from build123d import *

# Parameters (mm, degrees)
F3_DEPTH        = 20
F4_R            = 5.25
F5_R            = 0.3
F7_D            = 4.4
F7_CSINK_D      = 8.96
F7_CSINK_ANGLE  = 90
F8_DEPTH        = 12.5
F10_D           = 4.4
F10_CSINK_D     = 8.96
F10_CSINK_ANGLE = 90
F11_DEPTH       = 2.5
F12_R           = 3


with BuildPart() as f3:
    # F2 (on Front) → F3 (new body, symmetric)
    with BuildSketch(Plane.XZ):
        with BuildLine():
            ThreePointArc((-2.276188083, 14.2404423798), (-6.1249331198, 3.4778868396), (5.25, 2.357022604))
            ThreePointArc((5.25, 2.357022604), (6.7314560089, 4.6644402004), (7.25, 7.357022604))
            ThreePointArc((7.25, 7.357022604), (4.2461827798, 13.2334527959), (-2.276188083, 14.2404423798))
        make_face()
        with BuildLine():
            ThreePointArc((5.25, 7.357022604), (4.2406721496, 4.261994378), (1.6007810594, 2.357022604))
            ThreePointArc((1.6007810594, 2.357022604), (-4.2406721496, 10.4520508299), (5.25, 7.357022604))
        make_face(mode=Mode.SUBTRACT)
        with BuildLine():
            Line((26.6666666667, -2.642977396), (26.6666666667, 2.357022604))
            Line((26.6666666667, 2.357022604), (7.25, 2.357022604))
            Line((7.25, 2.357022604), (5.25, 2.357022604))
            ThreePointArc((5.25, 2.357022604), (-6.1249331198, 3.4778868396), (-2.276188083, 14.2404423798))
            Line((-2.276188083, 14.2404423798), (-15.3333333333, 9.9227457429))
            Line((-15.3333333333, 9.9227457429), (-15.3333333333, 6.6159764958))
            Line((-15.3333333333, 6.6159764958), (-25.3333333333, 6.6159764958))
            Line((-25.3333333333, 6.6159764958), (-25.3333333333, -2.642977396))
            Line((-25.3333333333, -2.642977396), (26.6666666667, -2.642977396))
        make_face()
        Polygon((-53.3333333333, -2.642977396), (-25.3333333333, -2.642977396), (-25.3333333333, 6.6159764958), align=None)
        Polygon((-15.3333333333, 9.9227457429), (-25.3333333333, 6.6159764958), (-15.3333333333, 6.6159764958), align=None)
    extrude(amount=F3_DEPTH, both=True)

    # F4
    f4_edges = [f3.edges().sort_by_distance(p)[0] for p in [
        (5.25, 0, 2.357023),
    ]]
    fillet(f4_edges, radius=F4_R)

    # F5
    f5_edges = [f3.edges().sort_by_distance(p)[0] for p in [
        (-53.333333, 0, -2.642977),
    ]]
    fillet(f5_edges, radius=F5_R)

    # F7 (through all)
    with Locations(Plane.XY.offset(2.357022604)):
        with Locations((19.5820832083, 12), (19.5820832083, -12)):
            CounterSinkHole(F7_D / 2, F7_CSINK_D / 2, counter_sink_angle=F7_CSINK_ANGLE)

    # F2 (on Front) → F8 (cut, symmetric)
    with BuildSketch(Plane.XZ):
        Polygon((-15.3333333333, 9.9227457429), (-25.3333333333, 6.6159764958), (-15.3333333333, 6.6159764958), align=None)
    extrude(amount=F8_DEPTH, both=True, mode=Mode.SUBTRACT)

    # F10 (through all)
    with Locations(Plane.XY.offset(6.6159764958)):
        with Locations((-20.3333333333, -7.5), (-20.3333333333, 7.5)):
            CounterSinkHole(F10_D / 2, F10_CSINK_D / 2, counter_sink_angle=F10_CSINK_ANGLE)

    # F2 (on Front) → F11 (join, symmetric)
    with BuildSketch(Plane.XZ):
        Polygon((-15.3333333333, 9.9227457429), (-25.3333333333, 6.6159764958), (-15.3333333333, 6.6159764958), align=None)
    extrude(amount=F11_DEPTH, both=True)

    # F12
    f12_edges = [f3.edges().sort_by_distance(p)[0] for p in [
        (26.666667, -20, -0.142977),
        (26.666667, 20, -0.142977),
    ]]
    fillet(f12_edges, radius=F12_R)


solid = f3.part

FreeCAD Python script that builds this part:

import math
import FreeCAD as App
import Part
import Sketcher


def edges_at(feature, points):
    """Names of the edges that pass closest to the given points."""
    edges = feature.Shape.Edges
    near = lambda p: min(range(len(edges)), key=lambda i: edges[i].distToShape(Part.Vertex(*p))[0])
    return sorted({f"Edge{near(p) + 1}" for p in points})


def add_polygon(sketch, points):
    """Adds a closed chain of lines whose ends are joined by coincident constraints."""
    first, n = sketch.GeometryCount, len(points)
    for a, b in zip(points, points[1:] + points[:1]):
        sketch.addGeometry(Part.LineSegment(App.Vector(*a, 0), App.Vector(*b, 0)), False)
    for i in range(n):
        sketch.addConstraint(Sketcher.Constraint("Coincident", first + i, 2, first + (i + 1) % n, 1))

doc = App.newDocument("Part")
body = doc.addObject("PartDesign::Body", "Body")

# Sketch on XZ plane
sketch1 = body.newObject("Sketcher::SketchObject", "Sketch")
sketch1.AttachmentSupport = (doc.getObject("XZ_Plane"), [""])
sketch1.MapMode = "FlatFace"
sketch1.addGeometry([
    Part.ArcOfCircle(Part.Circle(App.Vector(0, 7, 0), App.Vector(0, 0, 1), 7), math.radians(0), math.radians(108)),  # 0
    Part.LineSegment(App.Vector(-2, 14, 0), App.Vector(-15, 10, 0)),  # 1
    Part.LineSegment(App.Vector(-15, 10, 0), App.Vector(-25, 7, 0)),  # 2
    Part.LineSegment(App.Vector(-25, 7, 0), App.Vector(-53, -3, 0)),  # 3
    Part.LineSegment(App.Vector(-53, -3, 0), App.Vector(27, -3, 0)),  # 4
    Part.LineSegment(App.Vector(27, -3, 0), App.Vector(27, 2, 0)),  # 5
    Part.LineSegment(App.Vector(27, 2, 0), App.Vector(5, 2, 0)),  # 6
    Part.ArcOfCircle(Part.Circle(App.Vector(0, 7, 0), App.Vector(0, 0, 1), 7), math.radians(-44), math.radians(0)),  # 7
    Part.Circle(App.Vector(0, 7, 0), App.Vector(0, 0, 1), 5),  # 8
], False)
sketch1.addConstraint([
    Sketcher.Constraint("Tangent", 0, 2, 1, 1),
    Sketcher.Constraint("Coincident", 1, 2, 2, 1),
    Sketcher.Constraint("Coincident", 2, 2, 3, 1),
    Sketcher.Constraint("Coincident", 3, 2, 4, 1),
    Sketcher.Constraint("Coincident", 4, 2, 5, 1),
    Sketcher.Constraint("Coincident", 5, 2, 6, 1),
    Sketcher.Constraint("Coincident", 6, 2, 7, 1),
    Sketcher.Constraint("Tangent", 7, 2, 0, 1),
    Sketcher.Constraint("Horizontal", 4),
    Sketcher.Constraint("Vertical", 5),
    Sketcher.Constraint("Horizontal", 6),
    Sketcher.Constraint("Coincident", 8, 3, 0, 3),
    Sketcher.Constraint("Equal", 0, 7),
    Sketcher.Constraint("PointOnObject", 0, 3, -2),
    Sketcher.Constraint("Parallel", 1, 2),
    Sketcher.Constraint("Parallel", 2, 3),
    Sketcher.Constraint("Horizontal", 8, 3, 7, 2),
    Sketcher.Constraint("Diameter", 8, 10.5),
    Sketcher.Constraint("DistanceX", 4, 1, 4, 2, 80.0),
    Sketcher.Constraint("DistanceY", 5, 1, 5, 2, 5.0),
    Sketcher.Constraint("Radius", 0, 7.25),
    Sketcher.Constraint("DistanceX", 2, 2, 1, 2, 10.0),
    Sketcher.Constraint("DistanceX", 3, 2, 2, 2, 28.0),
    Sketcher.Constraint("DistanceY", 3, 2, 0, 3, 10.0),
    Sketcher.Constraint("Distance", 1, 13.752511),
    Sketcher.Constraint("DistanceY", -1, 1, 0, 3, 7.357023),
])
pad1 = body.newObject("PartDesign::Pad", "Pad")
pad1.Profile = sketch1
pad1.Length = 40
pad1.Midplane = True
doc.recompute()

fillet = body.newObject("PartDesign::Fillet", "Fillet")
fillet.Base = (pad1, edges_at(pad1, [(5.25, 0, 2.357)]))
fillet.Radius = 5.25
doc.recompute()

fillet2 = body.newObject("PartDesign::Fillet", "Fillet001")
fillet2.Base = (fillet, edges_at(fillet, [(-53.333, 0, -2.643)]))
fillet2.Radius = 0.3

# Sketch on XY plane
sketch2 = body.newObject("Sketcher::SketchObject", "Sketch001")
sketch2.AttachmentSupport = (doc.getObject("XY_Plane"), [""])
sketch2.MapMode = "FlatFace"
sketch2.AttachmentOffset = App.Placement(App.Vector(0, 0, 2.357023), App.Rotation())
sketch2.addGeometry([
    Part.Circle(App.Vector(19.6, 12, 0), App.Vector(0, 0, 1), 2.2),
    Part.Circle(App.Vector(19.6, -12, 0), App.Vector(0, 0, 1), 2.2),
], False)
sketch2.addConstraint([
    Sketcher.Constraint("Equal", 0, 1),
    Sketcher.Constraint("Symmetric", 0, 3, 1, 3, -1),
    Sketcher.Constraint("Diameter", 0, 4.4),
    Sketcher.Constraint("DistanceY", -1, 1, 0, 3, 12.0),
    Sketcher.Constraint("DistanceX", -1, 1, 0, 3, 19.582083),
])
doc.recompute()
hole = body.newObject("PartDesign::Hole", "Hole")
hole.Profile = sketch2
hole.ThreadType = "None"
hole.Diameter = 4.4
hole.DepthType = "ThroughAll"
hole.HoleCutType = "Countersink"
hole.HoleCutDiameter = 8.96
hole.HoleCutCountersinkAngle = 90

# Sketch on XZ plane
sketch3 = body.newObject("Sketcher::SketchObject", "Sketch002")
sketch3.AttachmentSupport = (doc.getObject("XZ_Plane"), [""])
sketch3.MapMode = "FlatFace"
add_polygon(sketch3, [(-15.3, 9.9), (-25.3, 6.6), (-15.3, 6.6)])  # lines 0-2
sketch3.addConstraint([
    Sketcher.Constraint("Horizontal", 1),
    Sketcher.Constraint("Vertical", 2),
    Sketcher.Constraint("DistanceX", 1, 1, 1, 2, 10.0),
    Sketcher.Constraint("DistanceY", 2, 1, 2, 2, 3.306769),
    Sketcher.Constraint("DistanceX", 0, 2, -1, 1, 25.333333),
    Sketcher.Constraint("DistanceY", -1, 1, 0, 2, 6.615976),
])
pocket1 = body.newObject("PartDesign::Pocket", "Pocket")
pocket1.Profile = sketch3
pocket1.Length = 25
pocket1.Midplane = True

# Sketch on XY plane
sketch4 = body.newObject("Sketcher::SketchObject", "Sketch003")
sketch4.AttachmentSupport = (doc.getObject("XY_Plane"), [""])
sketch4.MapMode = "FlatFace"
sketch4.AttachmentOffset = App.Placement(App.Vector(0, 0, 6.615976), App.Rotation())
sketch4.addGeometry([
    Part.Circle(App.Vector(-20.3, -7.5, 0), App.Vector(0, 0, 1), 2.2),
    Part.Circle(App.Vector(-20.3, 7.5, 0), App.Vector(0, 0, 1), 2.2),
], False)
sketch4.addConstraint([
    Sketcher.Constraint("Equal", 0, 1),
    Sketcher.Constraint("Symmetric", 0, 3, 1, 3, -1),
    Sketcher.Constraint("Diameter", 0, 4.4),
    Sketcher.Constraint("DistanceY", 0, 3, 1, 3, 15.0),
    Sketcher.Constraint("DistanceX", 0, 3, -1, 1, 20.333333),
])
doc.recompute()
hole2 = body.newObject("PartDesign::Hole", "Hole001")
hole2.Profile = sketch4
hole2.ThreadType = "None"
hole2.Diameter = 4.4
hole2.DepthType = "ThroughAll"
hole2.HoleCutType = "Countersink"
hole2.HoleCutDiameter = 8.96
hole2.HoleCutCountersinkAngle = 90

# Sketch on XZ plane
sketch5 = body.newObject("Sketcher::SketchObject", "Sketch004")
sketch5.AttachmentSupport = (doc.getObject("XZ_Plane"), [""])
sketch5.MapMode = "FlatFace"
add_polygon(sketch5, [(-15.3, 9.9), (-25.3, 6.6), (-15.3, 6.6)])  # lines 0-2
sketch5.addConstraint([
    Sketcher.Constraint("Horizontal", 1),
    Sketcher.Constraint("Vertical", 2),
    Sketcher.Constraint("DistanceX", 1, 1, 1, 2, 10.0),
    Sketcher.Constraint("DistanceY", 2, 1, 2, 2, 3.306769),
    Sketcher.Constraint("DistanceX", 0, 2, -1, 1, 25.333333),
    Sketcher.Constraint("DistanceY", -1, 1, 0, 2, 6.615976),
])
pad2 = body.newObject("PartDesign::Pad", "Pad001")
pad2.Profile = sketch5
pad2.Length = 5
pad2.Midplane = True
doc.recompute()

fillet3 = body.newObject("PartDesign::Fillet", "Fillet002")
fillet3.Base = (pad2, edges_at(pad2, [(26.667, -20, -0.143), (26.667, 20, -0.143)]))
fillet3.Radius = 3

doc.recompute()
